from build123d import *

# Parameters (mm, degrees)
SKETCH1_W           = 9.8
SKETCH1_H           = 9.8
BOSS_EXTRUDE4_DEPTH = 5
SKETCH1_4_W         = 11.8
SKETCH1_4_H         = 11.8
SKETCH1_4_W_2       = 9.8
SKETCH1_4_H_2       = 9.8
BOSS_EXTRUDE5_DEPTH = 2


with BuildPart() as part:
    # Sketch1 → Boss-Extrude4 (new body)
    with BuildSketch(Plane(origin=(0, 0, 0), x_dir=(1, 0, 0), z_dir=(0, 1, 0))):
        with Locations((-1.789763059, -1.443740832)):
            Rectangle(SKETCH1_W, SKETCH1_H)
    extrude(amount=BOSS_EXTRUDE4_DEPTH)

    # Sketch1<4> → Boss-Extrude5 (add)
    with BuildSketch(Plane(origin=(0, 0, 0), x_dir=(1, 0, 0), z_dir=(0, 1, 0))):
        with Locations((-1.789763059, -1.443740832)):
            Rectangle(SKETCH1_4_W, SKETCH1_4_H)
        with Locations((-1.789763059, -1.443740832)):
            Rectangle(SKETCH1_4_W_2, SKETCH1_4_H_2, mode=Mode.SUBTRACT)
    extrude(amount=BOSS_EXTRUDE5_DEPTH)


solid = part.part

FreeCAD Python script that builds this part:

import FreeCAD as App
import Part
import Sketcher
Q = App.Units.Quantity


def add_polygon(sketch, points):
    """Adds a closed chain of lines whose ends are joined by coincident constraints."""
    first, n = sketch.GeometryCount, len(points)
    for a, b in zip(points, points[1:] + points[:1]):
        sketch.addGeometry(Part.LineSegment(App.Vector(*a, 0), App.Vector(*b, 0)), False)
    for i in range(n):
        sketch.addConstraint(Sketcher.Constraint("Coincident", first + i, 2, first + (i + 1) % n, 1))

doc = App.newDocument("Part")
body = doc.addObject("PartDesign::Body", "Body")

sketch1 = doc.addObject("Sketcher::SketchObject", "Sketch")
body.addObject(sketch1)
sketch1.AttachmentSupport = (doc.XZ_Plane, [""])
sketch1.MapMode = "FlatFace"
add_polygon(sketch1, [(-7, -3), (-7, 6), (3, 6), (3, -3)])
sketch1.addConstraint([
    Sketcher.Constraint("Vertical", 0),
    Sketcher.Constraint("Horizontal", 1),
    Sketcher.Constraint("Vertical", 2),
    Sketcher.Constraint("Horizontal", 3),
    Sketcher.Constraint("Equal", 3, 0),
    Sketcher.Constraint("DistanceX", 1, 1, 1, 2, Q("9.8 mm")),
    Sketcher.Constraint("DistanceY", -1, 1, 0, 2, Q("6.343741 mm")),
    Sketcher.Constraint("DistanceX", 0, 2, -1, 1, Q("6.689763 mm")),
])
pad1 = doc.addObject("PartDesign::Pad", "Pad")
body.addObject(pad1)
pad1.Profile = sketch1
pad1.Length = 5
pad1.Reversed = True

sketch2 = doc.addObject("Sketcher::SketchObject", "Sketch001")
body.addObject(sketch2)
sketch2.AttachmentSupport = (doc.XZ_Plane, [""])
sketch2.MapMode = "FlatFace"
add_polygon(sketch2, [(-8, -4), (-8, 7), (4, 7), (4, -4)])
add_polygon(sketch2, [(3, 6), (-7, 6), (-7, -3), (3, -3)])
sketch2.addConstraint([
    Sketcher.Constraint("Vertical", 0),
    Sketcher.Constraint("Horizontal", 1),
    Sketcher.Constraint("Vertical", 2),
    Sketcher.Constraint("Horizontal", 3),
    Sketcher.Constraint("Horizontal", 4),
    Sketcher.Constraint("Vertical", 5),
    Sketcher.Constraint("Horizontal", 6),
    Sketcher.Constraint("Vertical", 7),
    Sketcher.Constraint("Equal", 3, 0),
    Sketcher.Constraint("Equal", 6, 5),
    Sketcher.Constraint("DistanceX", 1, 1, 1, 2, Q("11.8 mm")),
    Sketcher.Constraint("DistanceX", 4, 2, 4, 1, Q("9.8 mm")),
    Sketcher.Constraint("DistanceX", 0, 2, 4, 2, Q("1 mm")),
    Sketcher.Constraint("DistanceY", 4, 2, 0, 2, Q("1 mm")),
    Sketcher.Constraint("DistanceY", -1, 1, 0, 2, Q("7.343741 mm")),
    Sketcher.Constraint("DistanceX", 0, 2, -1, 1, Q("7.689763 mm")),
])
pad2 = doc.addObject("PartDesign::Pad", "Pad001")
body.addObject(pad2)
pad2.Profile = sketch2
pad2.Length = 2
pad2.Reversed = True

doc.recompute()
